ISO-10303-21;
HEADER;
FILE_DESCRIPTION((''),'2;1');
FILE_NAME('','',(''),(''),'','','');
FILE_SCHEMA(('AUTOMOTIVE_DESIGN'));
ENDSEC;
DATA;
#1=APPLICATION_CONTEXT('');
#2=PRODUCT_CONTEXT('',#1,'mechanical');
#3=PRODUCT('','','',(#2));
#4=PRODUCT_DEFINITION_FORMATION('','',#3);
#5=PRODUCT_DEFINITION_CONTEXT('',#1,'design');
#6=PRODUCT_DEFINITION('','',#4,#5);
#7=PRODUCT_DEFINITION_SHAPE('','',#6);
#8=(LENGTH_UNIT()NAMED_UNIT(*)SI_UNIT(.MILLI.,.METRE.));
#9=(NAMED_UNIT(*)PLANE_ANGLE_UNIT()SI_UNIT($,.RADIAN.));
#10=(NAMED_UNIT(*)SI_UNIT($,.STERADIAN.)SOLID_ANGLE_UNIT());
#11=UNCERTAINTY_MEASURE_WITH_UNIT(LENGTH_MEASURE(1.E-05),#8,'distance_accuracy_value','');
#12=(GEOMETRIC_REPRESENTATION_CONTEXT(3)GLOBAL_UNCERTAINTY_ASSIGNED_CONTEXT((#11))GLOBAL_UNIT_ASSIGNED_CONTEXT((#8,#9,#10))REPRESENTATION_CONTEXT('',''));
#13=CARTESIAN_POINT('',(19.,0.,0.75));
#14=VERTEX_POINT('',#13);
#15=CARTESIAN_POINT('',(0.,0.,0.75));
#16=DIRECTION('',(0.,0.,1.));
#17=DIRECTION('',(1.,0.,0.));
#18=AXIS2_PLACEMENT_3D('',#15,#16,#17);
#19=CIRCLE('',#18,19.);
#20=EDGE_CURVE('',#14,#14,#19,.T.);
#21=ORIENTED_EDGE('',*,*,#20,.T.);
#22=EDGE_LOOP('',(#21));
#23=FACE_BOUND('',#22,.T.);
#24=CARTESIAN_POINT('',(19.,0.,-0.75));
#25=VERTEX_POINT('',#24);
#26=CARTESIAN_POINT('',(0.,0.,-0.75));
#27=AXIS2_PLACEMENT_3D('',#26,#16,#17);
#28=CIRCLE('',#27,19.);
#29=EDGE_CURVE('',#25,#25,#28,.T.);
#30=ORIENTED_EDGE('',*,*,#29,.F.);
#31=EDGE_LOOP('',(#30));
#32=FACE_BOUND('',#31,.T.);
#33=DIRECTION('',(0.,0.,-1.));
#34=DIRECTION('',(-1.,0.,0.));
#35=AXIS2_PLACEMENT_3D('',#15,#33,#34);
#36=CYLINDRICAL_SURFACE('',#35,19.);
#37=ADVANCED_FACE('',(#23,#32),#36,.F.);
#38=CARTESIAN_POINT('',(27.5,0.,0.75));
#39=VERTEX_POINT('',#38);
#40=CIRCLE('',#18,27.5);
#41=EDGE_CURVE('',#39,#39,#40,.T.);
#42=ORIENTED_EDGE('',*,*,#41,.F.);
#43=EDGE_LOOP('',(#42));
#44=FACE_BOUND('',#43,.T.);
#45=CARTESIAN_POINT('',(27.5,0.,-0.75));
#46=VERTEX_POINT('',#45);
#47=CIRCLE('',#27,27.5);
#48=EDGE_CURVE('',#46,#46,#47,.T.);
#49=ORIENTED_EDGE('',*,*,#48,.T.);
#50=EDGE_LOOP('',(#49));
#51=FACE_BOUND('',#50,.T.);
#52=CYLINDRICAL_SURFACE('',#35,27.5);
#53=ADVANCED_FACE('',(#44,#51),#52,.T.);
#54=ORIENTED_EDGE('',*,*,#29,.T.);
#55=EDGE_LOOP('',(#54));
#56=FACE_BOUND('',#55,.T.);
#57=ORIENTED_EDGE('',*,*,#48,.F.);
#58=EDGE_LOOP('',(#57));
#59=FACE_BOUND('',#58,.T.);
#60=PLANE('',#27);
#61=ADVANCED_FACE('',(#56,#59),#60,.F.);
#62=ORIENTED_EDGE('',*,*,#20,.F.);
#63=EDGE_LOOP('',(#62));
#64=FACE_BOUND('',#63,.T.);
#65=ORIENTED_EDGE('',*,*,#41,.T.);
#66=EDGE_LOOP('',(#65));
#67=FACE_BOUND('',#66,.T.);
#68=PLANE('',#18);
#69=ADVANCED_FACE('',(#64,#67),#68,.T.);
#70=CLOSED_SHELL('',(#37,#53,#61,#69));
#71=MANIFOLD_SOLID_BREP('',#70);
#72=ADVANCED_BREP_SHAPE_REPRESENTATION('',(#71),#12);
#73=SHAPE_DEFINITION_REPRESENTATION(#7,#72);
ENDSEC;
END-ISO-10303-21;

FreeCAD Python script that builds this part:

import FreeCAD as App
import Part
import Sketcher
Q = App.Units.Quantity

doc = App.newDocument("Part")
body = doc.addObject("PartDesign::Body", "Body")

sketch1 = body.newObject("Sketcher::SketchObject", "Sketch")
sketch1.AttachmentSupport = (doc.getObject("XY_Plane"), [""])
sketch1.MapMode = "FlatFace"
sketch1.addGeometry(Part.Circle(App.Vector(0, 0, 0), App.Vector(0, 0, 1), 28), False)
sketch1.addGeometry(Part.Circle(App.Vector(0, 0, 0), App.Vector(0, 0, 1), 19), False)
sketch1.addConstraint(Sketcher.Constraint("Coincident", 0, 3, -1, 1))
sketch1.addConstraint(Sketcher.Constraint("Coincident", 1, 3, -1, 1))
sketch1.addConstraint(Sketcher.Constraint("Diameter", 0, Q("55 mm")))
sketch1.addConstraint(Sketcher.Constraint("Diameter", 1, Q("38 mm")))
pad1 = body.newObject("PartDesign::Pad", "Pad")
pad1.Profile = sketch1
pad1.Length = 1.5
pad1.Midplane = True

doc.recompute()
